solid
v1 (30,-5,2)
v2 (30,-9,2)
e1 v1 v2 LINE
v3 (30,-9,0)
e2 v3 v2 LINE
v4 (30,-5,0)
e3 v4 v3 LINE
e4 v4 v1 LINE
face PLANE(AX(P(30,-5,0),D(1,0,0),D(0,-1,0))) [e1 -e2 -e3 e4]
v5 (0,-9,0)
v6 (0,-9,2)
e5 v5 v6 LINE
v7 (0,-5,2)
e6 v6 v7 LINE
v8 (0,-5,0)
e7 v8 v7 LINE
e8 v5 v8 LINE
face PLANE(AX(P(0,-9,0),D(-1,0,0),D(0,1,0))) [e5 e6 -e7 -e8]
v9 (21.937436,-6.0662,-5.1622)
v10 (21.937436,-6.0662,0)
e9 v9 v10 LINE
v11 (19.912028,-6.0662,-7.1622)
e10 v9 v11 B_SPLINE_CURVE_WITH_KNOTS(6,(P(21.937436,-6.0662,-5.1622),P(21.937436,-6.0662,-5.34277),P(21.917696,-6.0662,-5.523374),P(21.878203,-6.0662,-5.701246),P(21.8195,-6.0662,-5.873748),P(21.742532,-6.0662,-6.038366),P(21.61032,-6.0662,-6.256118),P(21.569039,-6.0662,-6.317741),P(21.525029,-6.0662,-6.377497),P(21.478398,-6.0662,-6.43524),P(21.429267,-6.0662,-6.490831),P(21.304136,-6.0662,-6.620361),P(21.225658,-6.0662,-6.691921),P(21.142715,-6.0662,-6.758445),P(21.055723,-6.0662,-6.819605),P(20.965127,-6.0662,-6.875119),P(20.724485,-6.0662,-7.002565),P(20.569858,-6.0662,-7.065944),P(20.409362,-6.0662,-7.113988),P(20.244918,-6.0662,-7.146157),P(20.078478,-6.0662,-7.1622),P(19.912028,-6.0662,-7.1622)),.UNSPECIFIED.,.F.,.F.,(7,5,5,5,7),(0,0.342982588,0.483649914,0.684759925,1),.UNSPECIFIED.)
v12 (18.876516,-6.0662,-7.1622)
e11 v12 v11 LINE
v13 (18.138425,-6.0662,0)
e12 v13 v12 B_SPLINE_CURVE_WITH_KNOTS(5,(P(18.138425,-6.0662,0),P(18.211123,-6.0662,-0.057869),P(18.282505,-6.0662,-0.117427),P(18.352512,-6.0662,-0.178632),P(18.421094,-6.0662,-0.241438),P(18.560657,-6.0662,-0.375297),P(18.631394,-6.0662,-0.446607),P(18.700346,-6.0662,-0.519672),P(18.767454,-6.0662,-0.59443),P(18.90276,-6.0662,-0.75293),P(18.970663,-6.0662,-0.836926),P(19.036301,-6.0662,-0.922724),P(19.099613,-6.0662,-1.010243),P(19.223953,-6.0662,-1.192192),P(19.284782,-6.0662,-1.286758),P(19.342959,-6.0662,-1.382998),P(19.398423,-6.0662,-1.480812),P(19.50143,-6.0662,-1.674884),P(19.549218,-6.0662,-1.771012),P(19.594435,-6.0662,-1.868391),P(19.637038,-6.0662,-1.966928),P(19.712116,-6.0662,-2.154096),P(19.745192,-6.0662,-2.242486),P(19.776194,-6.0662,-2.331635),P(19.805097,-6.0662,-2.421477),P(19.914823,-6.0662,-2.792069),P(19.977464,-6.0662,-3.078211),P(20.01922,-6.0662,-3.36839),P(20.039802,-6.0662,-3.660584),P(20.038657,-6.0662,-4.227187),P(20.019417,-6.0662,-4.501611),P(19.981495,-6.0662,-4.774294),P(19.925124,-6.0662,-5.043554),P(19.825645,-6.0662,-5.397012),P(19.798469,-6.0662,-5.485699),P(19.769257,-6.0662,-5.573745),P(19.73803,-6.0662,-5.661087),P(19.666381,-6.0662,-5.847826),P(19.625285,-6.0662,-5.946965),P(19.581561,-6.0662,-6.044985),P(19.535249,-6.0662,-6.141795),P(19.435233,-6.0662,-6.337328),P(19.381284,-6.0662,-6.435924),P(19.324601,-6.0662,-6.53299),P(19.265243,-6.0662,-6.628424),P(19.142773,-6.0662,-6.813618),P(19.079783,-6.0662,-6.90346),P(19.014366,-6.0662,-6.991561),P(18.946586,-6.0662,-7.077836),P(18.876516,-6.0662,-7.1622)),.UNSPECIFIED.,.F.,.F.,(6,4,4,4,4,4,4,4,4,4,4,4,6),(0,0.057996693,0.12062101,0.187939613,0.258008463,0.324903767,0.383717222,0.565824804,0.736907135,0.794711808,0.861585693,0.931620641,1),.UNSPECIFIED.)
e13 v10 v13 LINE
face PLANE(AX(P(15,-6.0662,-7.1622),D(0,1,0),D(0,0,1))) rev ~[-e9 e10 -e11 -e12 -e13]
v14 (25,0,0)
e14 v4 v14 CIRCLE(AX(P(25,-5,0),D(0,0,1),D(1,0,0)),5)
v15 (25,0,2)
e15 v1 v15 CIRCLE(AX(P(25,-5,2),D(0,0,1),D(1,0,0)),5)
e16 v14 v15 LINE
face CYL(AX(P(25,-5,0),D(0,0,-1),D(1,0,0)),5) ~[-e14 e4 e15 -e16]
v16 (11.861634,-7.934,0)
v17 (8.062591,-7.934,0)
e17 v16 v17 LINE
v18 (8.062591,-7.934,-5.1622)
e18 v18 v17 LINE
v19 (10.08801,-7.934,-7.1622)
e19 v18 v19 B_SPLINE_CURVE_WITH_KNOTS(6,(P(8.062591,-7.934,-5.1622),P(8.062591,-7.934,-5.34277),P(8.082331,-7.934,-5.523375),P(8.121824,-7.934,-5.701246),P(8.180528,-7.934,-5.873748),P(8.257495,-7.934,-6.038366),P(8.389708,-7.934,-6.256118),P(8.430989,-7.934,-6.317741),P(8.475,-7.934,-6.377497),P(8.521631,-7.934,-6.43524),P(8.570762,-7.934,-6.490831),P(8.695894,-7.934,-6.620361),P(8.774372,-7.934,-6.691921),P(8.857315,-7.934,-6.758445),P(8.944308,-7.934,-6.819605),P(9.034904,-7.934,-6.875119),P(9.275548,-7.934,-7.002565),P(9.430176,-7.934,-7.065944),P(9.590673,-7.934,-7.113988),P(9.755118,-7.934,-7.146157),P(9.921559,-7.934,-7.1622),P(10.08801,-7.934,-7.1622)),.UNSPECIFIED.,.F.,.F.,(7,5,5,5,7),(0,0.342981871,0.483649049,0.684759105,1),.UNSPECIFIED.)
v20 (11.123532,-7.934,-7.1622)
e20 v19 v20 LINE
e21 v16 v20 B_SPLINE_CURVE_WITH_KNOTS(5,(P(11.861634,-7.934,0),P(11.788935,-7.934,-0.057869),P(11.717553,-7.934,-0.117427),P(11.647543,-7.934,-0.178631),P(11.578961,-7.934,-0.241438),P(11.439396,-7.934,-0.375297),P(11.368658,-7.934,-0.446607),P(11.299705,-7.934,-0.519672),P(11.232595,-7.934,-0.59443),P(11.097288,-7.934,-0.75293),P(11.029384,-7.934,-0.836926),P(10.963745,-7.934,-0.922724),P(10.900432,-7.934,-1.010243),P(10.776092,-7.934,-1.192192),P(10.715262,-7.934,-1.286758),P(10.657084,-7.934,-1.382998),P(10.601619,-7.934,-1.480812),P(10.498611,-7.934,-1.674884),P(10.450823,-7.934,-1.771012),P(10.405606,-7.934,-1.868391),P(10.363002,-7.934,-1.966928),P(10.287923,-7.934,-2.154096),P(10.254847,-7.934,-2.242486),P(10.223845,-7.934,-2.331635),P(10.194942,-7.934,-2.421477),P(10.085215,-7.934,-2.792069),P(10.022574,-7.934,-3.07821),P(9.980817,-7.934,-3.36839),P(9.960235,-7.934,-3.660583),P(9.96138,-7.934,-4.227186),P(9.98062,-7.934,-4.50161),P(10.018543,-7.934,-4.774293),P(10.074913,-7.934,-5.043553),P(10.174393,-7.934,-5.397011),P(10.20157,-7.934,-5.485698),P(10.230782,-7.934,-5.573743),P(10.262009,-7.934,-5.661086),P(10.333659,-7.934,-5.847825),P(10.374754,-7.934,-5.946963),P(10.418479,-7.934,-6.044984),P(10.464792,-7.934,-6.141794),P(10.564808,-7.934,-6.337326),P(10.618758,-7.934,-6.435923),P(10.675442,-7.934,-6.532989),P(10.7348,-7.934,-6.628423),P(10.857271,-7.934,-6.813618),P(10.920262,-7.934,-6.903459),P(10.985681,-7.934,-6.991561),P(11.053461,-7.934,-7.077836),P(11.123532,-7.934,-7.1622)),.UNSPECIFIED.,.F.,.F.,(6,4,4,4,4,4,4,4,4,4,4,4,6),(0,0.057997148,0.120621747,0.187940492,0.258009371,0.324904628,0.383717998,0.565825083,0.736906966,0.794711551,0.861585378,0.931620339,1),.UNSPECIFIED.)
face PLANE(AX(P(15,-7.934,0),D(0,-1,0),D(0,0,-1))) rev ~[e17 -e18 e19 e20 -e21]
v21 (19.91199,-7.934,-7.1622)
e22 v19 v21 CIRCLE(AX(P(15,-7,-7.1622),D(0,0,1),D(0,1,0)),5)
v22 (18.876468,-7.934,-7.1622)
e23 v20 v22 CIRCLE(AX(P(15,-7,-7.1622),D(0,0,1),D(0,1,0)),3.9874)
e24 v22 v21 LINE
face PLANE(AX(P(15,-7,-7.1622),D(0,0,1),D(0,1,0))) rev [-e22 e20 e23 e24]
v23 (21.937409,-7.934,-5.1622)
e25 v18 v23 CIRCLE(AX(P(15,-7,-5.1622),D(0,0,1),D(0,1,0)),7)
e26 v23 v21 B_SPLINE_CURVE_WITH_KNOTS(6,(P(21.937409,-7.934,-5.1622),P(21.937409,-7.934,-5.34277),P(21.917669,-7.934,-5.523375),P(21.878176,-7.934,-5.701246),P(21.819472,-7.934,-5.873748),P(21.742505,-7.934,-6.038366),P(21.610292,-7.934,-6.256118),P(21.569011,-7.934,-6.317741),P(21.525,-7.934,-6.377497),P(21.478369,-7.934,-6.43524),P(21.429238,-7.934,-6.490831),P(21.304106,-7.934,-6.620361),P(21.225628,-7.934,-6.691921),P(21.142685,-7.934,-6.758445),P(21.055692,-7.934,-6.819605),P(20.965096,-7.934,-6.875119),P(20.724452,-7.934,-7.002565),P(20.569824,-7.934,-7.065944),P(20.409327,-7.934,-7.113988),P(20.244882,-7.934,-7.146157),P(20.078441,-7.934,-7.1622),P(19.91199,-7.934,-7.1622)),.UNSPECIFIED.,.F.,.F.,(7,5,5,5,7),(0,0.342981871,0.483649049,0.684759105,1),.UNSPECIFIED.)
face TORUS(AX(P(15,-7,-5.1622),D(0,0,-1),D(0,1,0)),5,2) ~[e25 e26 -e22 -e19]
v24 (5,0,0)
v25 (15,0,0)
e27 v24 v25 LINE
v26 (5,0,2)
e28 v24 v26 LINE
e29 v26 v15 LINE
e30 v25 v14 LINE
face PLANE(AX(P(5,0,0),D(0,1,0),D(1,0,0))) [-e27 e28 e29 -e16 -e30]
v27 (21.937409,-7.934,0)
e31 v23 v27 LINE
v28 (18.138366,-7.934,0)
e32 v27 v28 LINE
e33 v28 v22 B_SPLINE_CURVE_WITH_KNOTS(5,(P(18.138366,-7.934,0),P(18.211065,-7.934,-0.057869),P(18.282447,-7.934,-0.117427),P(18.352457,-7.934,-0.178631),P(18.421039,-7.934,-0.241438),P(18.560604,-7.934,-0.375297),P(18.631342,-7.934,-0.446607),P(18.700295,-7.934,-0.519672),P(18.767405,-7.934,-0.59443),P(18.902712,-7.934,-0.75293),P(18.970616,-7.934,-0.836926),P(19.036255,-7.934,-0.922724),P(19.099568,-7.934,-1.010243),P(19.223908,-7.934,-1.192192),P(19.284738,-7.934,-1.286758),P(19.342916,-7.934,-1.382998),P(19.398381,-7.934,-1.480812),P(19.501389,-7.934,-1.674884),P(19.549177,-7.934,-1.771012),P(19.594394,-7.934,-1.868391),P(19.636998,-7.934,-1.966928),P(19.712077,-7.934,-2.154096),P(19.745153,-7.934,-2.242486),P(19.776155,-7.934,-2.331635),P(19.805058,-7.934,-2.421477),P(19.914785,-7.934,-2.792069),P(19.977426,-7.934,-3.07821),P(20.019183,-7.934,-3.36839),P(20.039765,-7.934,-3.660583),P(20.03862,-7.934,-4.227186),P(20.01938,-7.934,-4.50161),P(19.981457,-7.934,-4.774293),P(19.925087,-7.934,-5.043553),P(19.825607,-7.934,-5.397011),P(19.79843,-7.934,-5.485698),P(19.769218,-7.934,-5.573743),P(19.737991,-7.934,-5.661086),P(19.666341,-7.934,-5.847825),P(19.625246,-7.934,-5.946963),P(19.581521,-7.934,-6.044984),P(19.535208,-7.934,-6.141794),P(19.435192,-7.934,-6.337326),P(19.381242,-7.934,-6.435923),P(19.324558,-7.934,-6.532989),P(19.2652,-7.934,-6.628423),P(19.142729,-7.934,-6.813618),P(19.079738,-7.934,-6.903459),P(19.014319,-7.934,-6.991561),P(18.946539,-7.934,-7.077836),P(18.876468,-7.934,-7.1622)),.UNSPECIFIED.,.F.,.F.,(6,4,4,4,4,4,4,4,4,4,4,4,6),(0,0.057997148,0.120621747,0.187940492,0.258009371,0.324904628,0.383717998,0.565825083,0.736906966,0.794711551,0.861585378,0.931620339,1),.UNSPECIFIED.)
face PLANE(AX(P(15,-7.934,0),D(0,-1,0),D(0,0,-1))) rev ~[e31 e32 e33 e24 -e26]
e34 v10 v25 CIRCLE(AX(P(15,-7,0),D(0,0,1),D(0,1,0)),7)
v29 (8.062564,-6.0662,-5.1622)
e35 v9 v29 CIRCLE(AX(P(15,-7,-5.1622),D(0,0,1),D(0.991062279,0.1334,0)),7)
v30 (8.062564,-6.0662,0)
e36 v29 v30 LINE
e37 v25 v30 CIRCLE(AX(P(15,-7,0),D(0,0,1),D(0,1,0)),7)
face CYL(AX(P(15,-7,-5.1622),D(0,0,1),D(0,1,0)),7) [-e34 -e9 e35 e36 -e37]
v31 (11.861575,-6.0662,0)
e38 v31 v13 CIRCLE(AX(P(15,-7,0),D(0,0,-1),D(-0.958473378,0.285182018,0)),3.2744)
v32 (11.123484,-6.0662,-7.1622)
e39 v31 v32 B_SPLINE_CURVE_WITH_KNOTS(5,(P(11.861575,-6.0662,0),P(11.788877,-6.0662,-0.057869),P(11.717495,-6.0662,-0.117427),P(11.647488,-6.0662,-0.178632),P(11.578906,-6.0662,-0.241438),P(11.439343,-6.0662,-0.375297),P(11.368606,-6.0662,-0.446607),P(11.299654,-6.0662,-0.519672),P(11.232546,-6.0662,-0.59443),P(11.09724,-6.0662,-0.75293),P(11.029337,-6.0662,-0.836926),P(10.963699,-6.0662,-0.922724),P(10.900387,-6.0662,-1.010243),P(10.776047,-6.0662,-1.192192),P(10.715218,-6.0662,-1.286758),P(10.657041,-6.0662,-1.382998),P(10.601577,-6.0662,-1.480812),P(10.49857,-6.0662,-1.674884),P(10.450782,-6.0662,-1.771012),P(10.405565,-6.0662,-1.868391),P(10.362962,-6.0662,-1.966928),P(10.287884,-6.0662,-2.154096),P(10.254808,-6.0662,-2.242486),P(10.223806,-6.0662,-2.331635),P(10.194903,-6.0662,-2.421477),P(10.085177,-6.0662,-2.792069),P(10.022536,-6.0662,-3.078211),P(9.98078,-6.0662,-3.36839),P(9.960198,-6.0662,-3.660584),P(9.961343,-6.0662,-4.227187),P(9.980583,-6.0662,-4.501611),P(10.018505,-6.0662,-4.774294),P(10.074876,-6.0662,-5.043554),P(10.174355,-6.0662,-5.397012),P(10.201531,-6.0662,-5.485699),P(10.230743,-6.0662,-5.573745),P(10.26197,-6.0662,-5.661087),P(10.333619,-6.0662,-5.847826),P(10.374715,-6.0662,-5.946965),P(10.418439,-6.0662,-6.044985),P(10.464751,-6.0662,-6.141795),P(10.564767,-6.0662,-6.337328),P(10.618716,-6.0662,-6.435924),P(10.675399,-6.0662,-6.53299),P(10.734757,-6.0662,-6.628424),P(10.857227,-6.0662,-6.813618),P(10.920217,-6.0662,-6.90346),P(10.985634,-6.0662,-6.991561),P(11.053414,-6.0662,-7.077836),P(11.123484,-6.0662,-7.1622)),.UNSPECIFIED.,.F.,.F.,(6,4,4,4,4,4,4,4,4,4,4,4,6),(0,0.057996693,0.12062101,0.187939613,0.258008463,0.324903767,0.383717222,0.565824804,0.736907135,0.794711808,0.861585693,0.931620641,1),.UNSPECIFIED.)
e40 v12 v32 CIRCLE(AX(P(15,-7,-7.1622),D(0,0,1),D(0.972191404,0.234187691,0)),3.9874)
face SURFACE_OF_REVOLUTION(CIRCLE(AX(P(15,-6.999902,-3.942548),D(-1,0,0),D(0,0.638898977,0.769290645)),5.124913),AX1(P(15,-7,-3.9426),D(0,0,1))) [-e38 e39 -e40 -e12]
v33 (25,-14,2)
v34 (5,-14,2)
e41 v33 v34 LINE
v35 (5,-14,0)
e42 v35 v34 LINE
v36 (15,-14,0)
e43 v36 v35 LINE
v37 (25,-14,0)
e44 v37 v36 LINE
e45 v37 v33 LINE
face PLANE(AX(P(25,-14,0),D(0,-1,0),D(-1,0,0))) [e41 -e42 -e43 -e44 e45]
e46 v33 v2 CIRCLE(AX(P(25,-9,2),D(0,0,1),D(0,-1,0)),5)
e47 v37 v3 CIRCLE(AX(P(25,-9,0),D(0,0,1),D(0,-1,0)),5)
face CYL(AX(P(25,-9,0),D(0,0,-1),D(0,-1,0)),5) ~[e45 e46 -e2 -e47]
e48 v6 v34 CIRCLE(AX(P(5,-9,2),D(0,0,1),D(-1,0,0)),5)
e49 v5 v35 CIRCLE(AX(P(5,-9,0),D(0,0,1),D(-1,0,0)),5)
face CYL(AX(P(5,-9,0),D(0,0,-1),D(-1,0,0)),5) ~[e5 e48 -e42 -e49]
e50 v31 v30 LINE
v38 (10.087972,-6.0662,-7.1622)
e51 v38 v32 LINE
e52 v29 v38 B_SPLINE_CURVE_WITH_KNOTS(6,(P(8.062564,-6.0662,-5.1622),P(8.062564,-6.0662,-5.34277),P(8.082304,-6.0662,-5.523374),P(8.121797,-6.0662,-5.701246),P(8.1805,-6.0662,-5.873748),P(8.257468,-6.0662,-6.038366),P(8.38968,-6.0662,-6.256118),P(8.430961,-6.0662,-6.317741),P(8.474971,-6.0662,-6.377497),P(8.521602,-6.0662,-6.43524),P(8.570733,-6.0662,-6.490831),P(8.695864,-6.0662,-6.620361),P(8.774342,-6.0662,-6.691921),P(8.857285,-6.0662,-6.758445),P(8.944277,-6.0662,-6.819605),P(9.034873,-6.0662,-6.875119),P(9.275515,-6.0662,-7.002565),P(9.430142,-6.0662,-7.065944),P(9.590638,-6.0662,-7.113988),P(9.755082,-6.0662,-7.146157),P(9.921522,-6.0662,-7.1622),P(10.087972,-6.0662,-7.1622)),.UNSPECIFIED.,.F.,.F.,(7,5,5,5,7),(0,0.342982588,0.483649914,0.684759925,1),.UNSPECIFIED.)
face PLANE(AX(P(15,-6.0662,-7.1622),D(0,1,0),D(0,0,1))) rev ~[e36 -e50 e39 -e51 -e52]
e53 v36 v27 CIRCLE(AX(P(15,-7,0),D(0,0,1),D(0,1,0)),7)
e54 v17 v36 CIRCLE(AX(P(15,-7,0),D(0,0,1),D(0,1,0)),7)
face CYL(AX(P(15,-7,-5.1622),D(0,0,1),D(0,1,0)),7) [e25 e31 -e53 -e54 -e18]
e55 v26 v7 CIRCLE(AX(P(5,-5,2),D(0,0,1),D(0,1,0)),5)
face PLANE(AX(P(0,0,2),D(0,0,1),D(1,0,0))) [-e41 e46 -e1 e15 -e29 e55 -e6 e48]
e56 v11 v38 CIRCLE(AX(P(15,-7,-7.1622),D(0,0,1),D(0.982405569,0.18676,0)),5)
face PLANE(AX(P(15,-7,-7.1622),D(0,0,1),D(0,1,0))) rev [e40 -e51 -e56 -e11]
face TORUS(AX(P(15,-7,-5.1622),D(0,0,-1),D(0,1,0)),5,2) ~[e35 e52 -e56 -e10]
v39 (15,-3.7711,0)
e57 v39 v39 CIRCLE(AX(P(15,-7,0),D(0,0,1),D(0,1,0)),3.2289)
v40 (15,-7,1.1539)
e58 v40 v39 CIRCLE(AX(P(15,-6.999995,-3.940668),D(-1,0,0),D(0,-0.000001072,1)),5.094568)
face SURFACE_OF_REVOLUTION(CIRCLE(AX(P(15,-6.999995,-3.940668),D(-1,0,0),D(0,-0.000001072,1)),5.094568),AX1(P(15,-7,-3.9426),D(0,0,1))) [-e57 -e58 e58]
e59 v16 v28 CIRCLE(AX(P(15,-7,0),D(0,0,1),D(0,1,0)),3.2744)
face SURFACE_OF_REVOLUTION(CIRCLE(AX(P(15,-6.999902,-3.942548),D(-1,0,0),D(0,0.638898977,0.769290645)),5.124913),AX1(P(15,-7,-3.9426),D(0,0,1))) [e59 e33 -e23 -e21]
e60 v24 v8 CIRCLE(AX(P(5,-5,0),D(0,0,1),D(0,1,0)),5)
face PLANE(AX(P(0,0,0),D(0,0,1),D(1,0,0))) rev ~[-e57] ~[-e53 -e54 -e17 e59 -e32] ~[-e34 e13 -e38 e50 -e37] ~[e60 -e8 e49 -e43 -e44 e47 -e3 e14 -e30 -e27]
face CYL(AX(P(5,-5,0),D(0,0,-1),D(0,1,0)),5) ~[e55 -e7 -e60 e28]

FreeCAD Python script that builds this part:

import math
import FreeCAD as App
import Part
import Sketcher
from FreeCAD import Vector


def add_polygon(sketch, points):
    """Adds a closed chain of lines whose ends are joined by coincident constraints."""
    first, n = sketch.GeometryCount, len(points)
    for a, b in zip(points, points[1:] + points[:1]):
        sketch.addGeometry(Part.LineSegment(App.Vector(*a, 0), App.Vector(*b, 0)), False)
    for i in range(n):
        sketch.addConstraint(Sketcher.Constraint("Coincident", first + i, 2, first + (i + 1) % n, 1))

doc = App.newDocument("Part")
params = doc.addObject("Spreadsheet::Sheet", "Params")
for row, (alias, value) in enumerate([
    ("sketch1_radius", "5 mm"),
    ("pad1_length", "2 mm"),
    ("sketch2_radius", "2 mm"),
    ("revolution_angle", "360 deg"),
    ("groove_angle", "360 deg"),
], start=1):
    params.set(f"A{row}", alias)
    params.set(f"B{row}", "=" + value)
    params.setAlias(f"B{row}", alias)

body = doc.addObject("PartDesign::Body", "Body")

# Sketch on XY plane
sketch1 = body.newObject("Sketcher::SketchObject", "Sketch")
sketch1.AttachmentSupport = (doc.getObject("XY_Plane"), [""])
sketch1.MapMode = "FlatFace"
sketch1.addGeometry([
    Part.LineSegment(Vector(25, 0, 0), Vector(5, 0, 0)),  # 0
    Part.ArcOfCircle(Part.Circle(Vector(5, -5, 0), Vector(0, 0, 1), 5), math.radians(90), math.radians(180)),  # 1
    Part.LineSegment(Vector(0, -5, 0), Vector(0, -9, 0)),  # 2
    Part.ArcOfCircle(Part.Circle(Vector(5, -9, 0), Vector(0, 0, 1), 5), math.radians(180), math.radians(270)),  # 3
    Part.LineSegment(Vector(5, -14, 0), Vector(25, -14, 0)),  # 4
    Part.ArcOfCircle(Part.Circle(Vector(25, -9, 0), Vector(0, 0, 1), 5), math.radians(-90), math.radians(0)),  # 5
    Part.LineSegment(Vector(30, -9, 0), Vector(30, -5, 0)),  # 6
    Part.ArcOfCircle(Part.Circle(Vector(25, -5, 0), Vector(0, 0, 1), 5), math.radians(0), math.radians(90)),  # 7
], False)
sketch1.addConstraint([
    Sketcher.Constraint("Tangent", 0, 2, 1, 1),
    Sketcher.Constraint("Tangent", 1, 2, 2, 1),
    Sketcher.Constraint("Tangent", 2, 2, 3, 1),
    Sketcher.Constraint("Tangent", 3, 2, 4, 1),
    Sketcher.Constraint("Tangent", 4, 2, 5, 1),
    Sketcher.Constraint("Tangent", 5, 2, 6, 1),
    Sketcher.Constraint("Tangent", 6, 2, 7, 1),
    Sketcher.Constraint("Tangent", 7, 2, 0, 1),
    Sketcher.Constraint("Horizontal", 0),
    Sketcher.Constraint("Vertical", 2),
    Sketcher.Constraint("Horizontal", 4),
    Sketcher.Constraint("Vertical", 6),
    Sketcher.Constraint("Equal", 1, 3),
    Sketcher.Constraint("Equal", 3, 5),
    Sketcher.Constraint("Equal", 5, 7),
    Sketcher.Constraint("PointOnObject", 0, 2, -1),
    Sketcher.Constraint("PointOnObject", 1, 2, -2),
    Sketcher.Constraint("Radius", 1, 5.0),
    Sketcher.Constraint("DistanceY", 3, 2, -1, 1, 14.0),
    Sketcher.Constraint("DistanceX", -1, 1, 5, 2, 30.0),
])
sketch1.setExpression("Constraints[17]", "Params.sketch1_radius")
pad1 = body.newObject("PartDesign::Pad", "Pad")
pad1.Profile = sketch1
pad1.setExpression("Length", "Params.pad1_length")

# Sketch on YZ plane
sketch2 = body.newObject("Sketcher::SketchObject", "Sketch001")
sketch2.AttachmentSupport = (doc.getObject("YZ_Plane"), [""])
sketch2.MapMode = "FlatFace"
sketch2.AttachmentOffset = App.Placement(Vector(0, 0, 15), App.Rotation())
sketch2.addGeometry([
    Part.ArcOfCircle(Part.Circle(Vector(-7, -3.9, 0), Vector(0, 0, 1), 5.1), math.radians(-39), math.radians(50)),  # 0
    Part.LineSegment(Vector(-3.7, 0, 0), Vector(0, 0, 0)),  # 1
    Part.LineSegment(Vector(0, 0, 0), Vector(0, -5.2, 0)),  # 2
    Part.ArcOfCircle(Part.Circle(Vector(-2, -5.2, 0), Vector(0, 0, 1), 2), math.radians(-90), math.radians(0)),  # 3
    Part.LineSegment(Vector(-2, -7.2, 0), Vector(-3, -7.2, 0)),  # 4
], False)
sketch2.addGeometry(Part.LineSegment(Vector(-7, -7.2, 0), Vector(-7, 0, 0)), True)  # axis
sketch2.addConstraint([
    Sketcher.Constraint("Coincident", 0, 2, 1, 1),
    Sketcher.Constraint("Coincident", 1, 2, 2, 1),
    Sketcher.Constraint("Tangent", 2, 2, 3, 2),
    Sketcher.Constraint("Tangent", 3, 1, 4, 1),
    Sketcher.Constraint("Coincident", 4, 2, 0, 1),
    Sketcher.Constraint("Horizontal", 1),
    Sketcher.Constraint("Vertical", 2),
    Sketcher.Constraint("Horizontal", 4),
    Sketcher.Constraint("Vertical", 5),
    Sketcher.Constraint("Coincident", 1, 2, -1, 1),
    Sketcher.Constraint("PointOnObject", 5, 2, -1),
    Sketcher.Constraint("Horizontal", 4, 2, 5, 1),
    Sketcher.Constraint("Vertical", 0, 3, 5, 1),
    Sketcher.Constraint("Radius", 3, 2.0),
    Sketcher.Constraint("Radius", 0, 5.125),
    Sketcher.Constraint("DistanceX", 0, 3, -1, 1, 7.0),
    Sketcher.Constraint("DistanceX", 1, 1, 1, 2, 3.7256),
    Sketcher.Constraint("DistanceX", 4, 2, 4, 1, 1.0126),
])
sketch2.setExpression("Constraints[13]", "Params.sketch2_radius")
revolution = body.newObject("PartDesign::Revolution", "Revolution")
revolution.Profile = sketch2
revolution.ReferenceAxis = (sketch2, ["Axis0"])
revolution.setExpression("Angle", "Params.revolution_angle")

# Sketch on YZ plane
sketch3 = body.newObject("Sketcher::SketchObject", "Sketch002")
sketch3.AttachmentSupport = (doc.getObject("YZ_Plane"), [""])
sketch3.MapMode = "FlatFace"
sketch3.AttachmentOffset = App.Placement(Vector(0, 0, 15), App.Rotation())
add_polygon(sketch3, [(-7.9, -7.2), (-7.9, 0), (-6.1, 0), (-6.1, -7.2)])  # lines 0-3
sketch3.addConstraint([
    Sketcher.Constraint("Vertical", 0),
    Sketcher.Constraint("Horizontal", 1),
    Sketcher.Constraint("Vertical", 2),
    Sketcher.Constraint("Horizontal", 3),
    Sketcher.Constraint("PointOnObject", 0, 2, -1),
    Sketcher.Constraint("DistanceX", 1, 1, 1, 2, 1.8678),
    Sketcher.Constraint("DistanceY", 0, 1, 0, 2, 7.1622),
    Sketcher.Constraint("DistanceX", 0, 2, -1, 1, 7.934),
])
pocket1 = body.newObject("PartDesign::Pocket", "Pocket")
pocket1.Profile = sketch3
pocket1.Type = "ThroughAll"
pocket1.Midplane = True

# Sketch on YZ plane
sketch4 = body.newObject("Sketcher::SketchObject", "Sketch003")
sketch4.AttachmentSupport = (doc.getObject("YZ_Plane"), [""])
sketch4.MapMode = "FlatFace"
sketch4.AttachmentOffset = App.Placement(Vector(0, 0, 15), App.Rotation())
sketch4.addGeometry([
    Part.LineSegment(Vector(-3.8, 0, 0), Vector(-7, 0, 0)),
    Part.LineSegment(Vector(-7, 0, 0), Vector(-7, 1.2, 0)),
    Part.ArcOfCircle(Part.Circle(Vector(-7, -3.9, 0), Vector(0, 0, 1), 5.1), math.radians(51), math.radians(90)),
], False)
sketch4.addGeometry(Part.LineSegment(Vector(-7, -3.9, 0), Vector(-7, 1.2, 0)), True)  # axis
sketch4.addConstraint([
    Sketcher.Constraint("Coincident", 0, 2, 1, 1),
    Sketcher.Constraint("Coincident", 1, 2, 2, 2),
    Sketcher.Constraint("Coincident", 2, 1, 0, 1),
    Sketcher.Constraint("Horizontal", 0),
    Sketcher.Constraint("Vertical", 1),
    Sketcher.Constraint("Vertical", 3),
    Sketcher.Constraint("Coincident", 3, 1, 2, 3),
    Sketcher.Constraint("Coincident", 3, 2, 1, 2),
    Sketcher.Constraint("PointOnObject", 0, 2, -1),
    Sketcher.Constraint("DistanceX", 2, 3, -1, 1, 7.0),
    Sketcher.Constraint("Radius", 2, 5.0946),
    Sketcher.Constraint("DistanceX", 0, 2, 0, 1, 3.229),
])
groove = body.newObject("PartDesign::Groove", "Groove")
groove.Profile = sketch4
groove.ReferenceAxis = (sketch4, ["Axis0"])
groove.setExpression("Angle", "Params.groove_angle")

doc.recompute()
